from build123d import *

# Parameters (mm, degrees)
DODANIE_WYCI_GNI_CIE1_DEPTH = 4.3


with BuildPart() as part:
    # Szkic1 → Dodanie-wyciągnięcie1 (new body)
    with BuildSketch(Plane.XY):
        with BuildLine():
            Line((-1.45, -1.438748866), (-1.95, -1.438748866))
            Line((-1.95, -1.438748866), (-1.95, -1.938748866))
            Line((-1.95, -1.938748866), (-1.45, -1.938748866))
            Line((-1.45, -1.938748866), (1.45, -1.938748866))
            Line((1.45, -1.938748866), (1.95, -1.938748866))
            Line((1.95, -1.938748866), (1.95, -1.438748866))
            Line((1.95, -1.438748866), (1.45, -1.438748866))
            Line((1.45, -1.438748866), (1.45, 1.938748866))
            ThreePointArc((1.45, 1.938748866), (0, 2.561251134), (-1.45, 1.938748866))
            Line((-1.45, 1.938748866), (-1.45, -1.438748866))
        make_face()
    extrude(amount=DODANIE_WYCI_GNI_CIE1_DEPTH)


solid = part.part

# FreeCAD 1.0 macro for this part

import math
import FreeCAD as App
import Part
import Sketcher

V = App.Vector

doc = App.newDocument("Part")
params = doc.addObject("Spreadsheet::Sheet", "Params")
for row, (alias, value) in enumerate([
    ("sketch1_radius", "2 mm"),
    ("sketch1_width", "0.5 mm"),
    ("sketch1_width2", "3.9 mm"),
    ("pad1_length", "4.3 mm"),
], start=1):
    params.set(f"A{row}", alias)
    params.set(f"B{row}", "=" + value)
    params.setAlias(f"B{row}", alias)

body = doc.addObject("PartDesign::Body", "Body")

# Sketch on XY plane
sketch1 = doc.addObject("Sketcher::SketchObject", "Sketch")
body.addObject(sketch1)
sketch1.AttachmentSupport = (doc.XY_Plane, [""])
sketch1.MapMode = "FlatFace"
sketch1.addGeometry([
    Part.LineSegment(V(-1.4, -1.4, 0), V(-1.9, -1.4, 0)),  # 0
    Part.LineSegment(V(-1.9, -1.4, 0), V(-1.9, -1.9, 0)),  # 1
    Part.LineSegment(V(-1.9, -1.9, 0), V(1.9, -1.9, 0)),  # 2
    Part.LineSegment(V(1.9, -1.9, 0), V(1.9, -1.4, 0)),  # 3
    Part.LineSegment(V(1.9, -1.4, 0), V(1.4, -1.4, 0)),  # 4
    Part.LineSegment(V(1.4, -1.4, 0), V(1.4, 1.9, 0)),  # 5
    Part.ArcOfCircle(Part.Circle(V(0, 0.6, 0), V(0, 0, 1), 2), math.radians(44), math.radians(136)),  # 6
    Part.LineSegment(V(-1.4, 1.9, 0), V(-1.4, -1.4, 0)),  # 7
], False)
sketch1.addConstraint([
    Sketcher.Constraint("Coincident", 0, 2, 1, 1),
    Sketcher.Constraint("Coincident", 1, 2, 2, 1),
    Sketcher.Constraint("Coincident", 2, 2, 3, 1),
    Sketcher.Constraint("Coincident", 3, 2, 4, 1),
    Sketcher.Constraint("Coincident", 4, 2, 5, 1),
    Sketcher.Constraint("Coincident", 5, 2, 6, 1),
    Sketcher.Constraint("Coincident", 6, 2, 7, 1),
    Sketcher.Constraint("Coincident", 7, 2, 0, 1),
    Sketcher.Constraint("Horizontal", 0),
    Sketcher.Constraint("Vertical", 1),
    Sketcher.Constraint("Horizontal", 2),
    Sketcher.Constraint("Vertical", 3),
    Sketcher.Constraint("Horizontal", 4),
    Sketcher.Constraint("Vertical", 5),
    Sketcher.Constraint("Vertical", 7),
    Sketcher.Constraint("Symmetric", 0, 2, 3, 2, -2),
    Sketcher.Constraint("Symmetric", 5, 2, 6, 2, -2),
    Sketcher.Constraint("Equal", 4, 1),
    Sketcher.Constraint("Radius", 6, 2.0),
    Sketcher.Constraint("DistanceX", 0, 2, 0, 1, 0.5),
    Sketcher.Constraint("DistanceX", 2, 1, 2, 2, 3.9),
    Sketcher.Constraint("DistanceY", 0, 2, 6, 3, 2.0),
    Sketcher.Constraint("DistanceY", -1, 1, 6, 3, 0.561251),
])
sketch1.setExpression("Constraints[18]", "Params.sketch1_radius")
sketch1.setExpression("Constraints[19]", "Params.sketch1_width")
sketch1.setExpression("Constraints[20]", "Params.sketch1_width2")
pad1 = doc.addObject("PartDesign::Pad", "Pad")
body.addObject(pad1)
pad1.Profile = sketch1
pad1.setExpression("Length", "Params.pad1_length")

doc.recompute()
